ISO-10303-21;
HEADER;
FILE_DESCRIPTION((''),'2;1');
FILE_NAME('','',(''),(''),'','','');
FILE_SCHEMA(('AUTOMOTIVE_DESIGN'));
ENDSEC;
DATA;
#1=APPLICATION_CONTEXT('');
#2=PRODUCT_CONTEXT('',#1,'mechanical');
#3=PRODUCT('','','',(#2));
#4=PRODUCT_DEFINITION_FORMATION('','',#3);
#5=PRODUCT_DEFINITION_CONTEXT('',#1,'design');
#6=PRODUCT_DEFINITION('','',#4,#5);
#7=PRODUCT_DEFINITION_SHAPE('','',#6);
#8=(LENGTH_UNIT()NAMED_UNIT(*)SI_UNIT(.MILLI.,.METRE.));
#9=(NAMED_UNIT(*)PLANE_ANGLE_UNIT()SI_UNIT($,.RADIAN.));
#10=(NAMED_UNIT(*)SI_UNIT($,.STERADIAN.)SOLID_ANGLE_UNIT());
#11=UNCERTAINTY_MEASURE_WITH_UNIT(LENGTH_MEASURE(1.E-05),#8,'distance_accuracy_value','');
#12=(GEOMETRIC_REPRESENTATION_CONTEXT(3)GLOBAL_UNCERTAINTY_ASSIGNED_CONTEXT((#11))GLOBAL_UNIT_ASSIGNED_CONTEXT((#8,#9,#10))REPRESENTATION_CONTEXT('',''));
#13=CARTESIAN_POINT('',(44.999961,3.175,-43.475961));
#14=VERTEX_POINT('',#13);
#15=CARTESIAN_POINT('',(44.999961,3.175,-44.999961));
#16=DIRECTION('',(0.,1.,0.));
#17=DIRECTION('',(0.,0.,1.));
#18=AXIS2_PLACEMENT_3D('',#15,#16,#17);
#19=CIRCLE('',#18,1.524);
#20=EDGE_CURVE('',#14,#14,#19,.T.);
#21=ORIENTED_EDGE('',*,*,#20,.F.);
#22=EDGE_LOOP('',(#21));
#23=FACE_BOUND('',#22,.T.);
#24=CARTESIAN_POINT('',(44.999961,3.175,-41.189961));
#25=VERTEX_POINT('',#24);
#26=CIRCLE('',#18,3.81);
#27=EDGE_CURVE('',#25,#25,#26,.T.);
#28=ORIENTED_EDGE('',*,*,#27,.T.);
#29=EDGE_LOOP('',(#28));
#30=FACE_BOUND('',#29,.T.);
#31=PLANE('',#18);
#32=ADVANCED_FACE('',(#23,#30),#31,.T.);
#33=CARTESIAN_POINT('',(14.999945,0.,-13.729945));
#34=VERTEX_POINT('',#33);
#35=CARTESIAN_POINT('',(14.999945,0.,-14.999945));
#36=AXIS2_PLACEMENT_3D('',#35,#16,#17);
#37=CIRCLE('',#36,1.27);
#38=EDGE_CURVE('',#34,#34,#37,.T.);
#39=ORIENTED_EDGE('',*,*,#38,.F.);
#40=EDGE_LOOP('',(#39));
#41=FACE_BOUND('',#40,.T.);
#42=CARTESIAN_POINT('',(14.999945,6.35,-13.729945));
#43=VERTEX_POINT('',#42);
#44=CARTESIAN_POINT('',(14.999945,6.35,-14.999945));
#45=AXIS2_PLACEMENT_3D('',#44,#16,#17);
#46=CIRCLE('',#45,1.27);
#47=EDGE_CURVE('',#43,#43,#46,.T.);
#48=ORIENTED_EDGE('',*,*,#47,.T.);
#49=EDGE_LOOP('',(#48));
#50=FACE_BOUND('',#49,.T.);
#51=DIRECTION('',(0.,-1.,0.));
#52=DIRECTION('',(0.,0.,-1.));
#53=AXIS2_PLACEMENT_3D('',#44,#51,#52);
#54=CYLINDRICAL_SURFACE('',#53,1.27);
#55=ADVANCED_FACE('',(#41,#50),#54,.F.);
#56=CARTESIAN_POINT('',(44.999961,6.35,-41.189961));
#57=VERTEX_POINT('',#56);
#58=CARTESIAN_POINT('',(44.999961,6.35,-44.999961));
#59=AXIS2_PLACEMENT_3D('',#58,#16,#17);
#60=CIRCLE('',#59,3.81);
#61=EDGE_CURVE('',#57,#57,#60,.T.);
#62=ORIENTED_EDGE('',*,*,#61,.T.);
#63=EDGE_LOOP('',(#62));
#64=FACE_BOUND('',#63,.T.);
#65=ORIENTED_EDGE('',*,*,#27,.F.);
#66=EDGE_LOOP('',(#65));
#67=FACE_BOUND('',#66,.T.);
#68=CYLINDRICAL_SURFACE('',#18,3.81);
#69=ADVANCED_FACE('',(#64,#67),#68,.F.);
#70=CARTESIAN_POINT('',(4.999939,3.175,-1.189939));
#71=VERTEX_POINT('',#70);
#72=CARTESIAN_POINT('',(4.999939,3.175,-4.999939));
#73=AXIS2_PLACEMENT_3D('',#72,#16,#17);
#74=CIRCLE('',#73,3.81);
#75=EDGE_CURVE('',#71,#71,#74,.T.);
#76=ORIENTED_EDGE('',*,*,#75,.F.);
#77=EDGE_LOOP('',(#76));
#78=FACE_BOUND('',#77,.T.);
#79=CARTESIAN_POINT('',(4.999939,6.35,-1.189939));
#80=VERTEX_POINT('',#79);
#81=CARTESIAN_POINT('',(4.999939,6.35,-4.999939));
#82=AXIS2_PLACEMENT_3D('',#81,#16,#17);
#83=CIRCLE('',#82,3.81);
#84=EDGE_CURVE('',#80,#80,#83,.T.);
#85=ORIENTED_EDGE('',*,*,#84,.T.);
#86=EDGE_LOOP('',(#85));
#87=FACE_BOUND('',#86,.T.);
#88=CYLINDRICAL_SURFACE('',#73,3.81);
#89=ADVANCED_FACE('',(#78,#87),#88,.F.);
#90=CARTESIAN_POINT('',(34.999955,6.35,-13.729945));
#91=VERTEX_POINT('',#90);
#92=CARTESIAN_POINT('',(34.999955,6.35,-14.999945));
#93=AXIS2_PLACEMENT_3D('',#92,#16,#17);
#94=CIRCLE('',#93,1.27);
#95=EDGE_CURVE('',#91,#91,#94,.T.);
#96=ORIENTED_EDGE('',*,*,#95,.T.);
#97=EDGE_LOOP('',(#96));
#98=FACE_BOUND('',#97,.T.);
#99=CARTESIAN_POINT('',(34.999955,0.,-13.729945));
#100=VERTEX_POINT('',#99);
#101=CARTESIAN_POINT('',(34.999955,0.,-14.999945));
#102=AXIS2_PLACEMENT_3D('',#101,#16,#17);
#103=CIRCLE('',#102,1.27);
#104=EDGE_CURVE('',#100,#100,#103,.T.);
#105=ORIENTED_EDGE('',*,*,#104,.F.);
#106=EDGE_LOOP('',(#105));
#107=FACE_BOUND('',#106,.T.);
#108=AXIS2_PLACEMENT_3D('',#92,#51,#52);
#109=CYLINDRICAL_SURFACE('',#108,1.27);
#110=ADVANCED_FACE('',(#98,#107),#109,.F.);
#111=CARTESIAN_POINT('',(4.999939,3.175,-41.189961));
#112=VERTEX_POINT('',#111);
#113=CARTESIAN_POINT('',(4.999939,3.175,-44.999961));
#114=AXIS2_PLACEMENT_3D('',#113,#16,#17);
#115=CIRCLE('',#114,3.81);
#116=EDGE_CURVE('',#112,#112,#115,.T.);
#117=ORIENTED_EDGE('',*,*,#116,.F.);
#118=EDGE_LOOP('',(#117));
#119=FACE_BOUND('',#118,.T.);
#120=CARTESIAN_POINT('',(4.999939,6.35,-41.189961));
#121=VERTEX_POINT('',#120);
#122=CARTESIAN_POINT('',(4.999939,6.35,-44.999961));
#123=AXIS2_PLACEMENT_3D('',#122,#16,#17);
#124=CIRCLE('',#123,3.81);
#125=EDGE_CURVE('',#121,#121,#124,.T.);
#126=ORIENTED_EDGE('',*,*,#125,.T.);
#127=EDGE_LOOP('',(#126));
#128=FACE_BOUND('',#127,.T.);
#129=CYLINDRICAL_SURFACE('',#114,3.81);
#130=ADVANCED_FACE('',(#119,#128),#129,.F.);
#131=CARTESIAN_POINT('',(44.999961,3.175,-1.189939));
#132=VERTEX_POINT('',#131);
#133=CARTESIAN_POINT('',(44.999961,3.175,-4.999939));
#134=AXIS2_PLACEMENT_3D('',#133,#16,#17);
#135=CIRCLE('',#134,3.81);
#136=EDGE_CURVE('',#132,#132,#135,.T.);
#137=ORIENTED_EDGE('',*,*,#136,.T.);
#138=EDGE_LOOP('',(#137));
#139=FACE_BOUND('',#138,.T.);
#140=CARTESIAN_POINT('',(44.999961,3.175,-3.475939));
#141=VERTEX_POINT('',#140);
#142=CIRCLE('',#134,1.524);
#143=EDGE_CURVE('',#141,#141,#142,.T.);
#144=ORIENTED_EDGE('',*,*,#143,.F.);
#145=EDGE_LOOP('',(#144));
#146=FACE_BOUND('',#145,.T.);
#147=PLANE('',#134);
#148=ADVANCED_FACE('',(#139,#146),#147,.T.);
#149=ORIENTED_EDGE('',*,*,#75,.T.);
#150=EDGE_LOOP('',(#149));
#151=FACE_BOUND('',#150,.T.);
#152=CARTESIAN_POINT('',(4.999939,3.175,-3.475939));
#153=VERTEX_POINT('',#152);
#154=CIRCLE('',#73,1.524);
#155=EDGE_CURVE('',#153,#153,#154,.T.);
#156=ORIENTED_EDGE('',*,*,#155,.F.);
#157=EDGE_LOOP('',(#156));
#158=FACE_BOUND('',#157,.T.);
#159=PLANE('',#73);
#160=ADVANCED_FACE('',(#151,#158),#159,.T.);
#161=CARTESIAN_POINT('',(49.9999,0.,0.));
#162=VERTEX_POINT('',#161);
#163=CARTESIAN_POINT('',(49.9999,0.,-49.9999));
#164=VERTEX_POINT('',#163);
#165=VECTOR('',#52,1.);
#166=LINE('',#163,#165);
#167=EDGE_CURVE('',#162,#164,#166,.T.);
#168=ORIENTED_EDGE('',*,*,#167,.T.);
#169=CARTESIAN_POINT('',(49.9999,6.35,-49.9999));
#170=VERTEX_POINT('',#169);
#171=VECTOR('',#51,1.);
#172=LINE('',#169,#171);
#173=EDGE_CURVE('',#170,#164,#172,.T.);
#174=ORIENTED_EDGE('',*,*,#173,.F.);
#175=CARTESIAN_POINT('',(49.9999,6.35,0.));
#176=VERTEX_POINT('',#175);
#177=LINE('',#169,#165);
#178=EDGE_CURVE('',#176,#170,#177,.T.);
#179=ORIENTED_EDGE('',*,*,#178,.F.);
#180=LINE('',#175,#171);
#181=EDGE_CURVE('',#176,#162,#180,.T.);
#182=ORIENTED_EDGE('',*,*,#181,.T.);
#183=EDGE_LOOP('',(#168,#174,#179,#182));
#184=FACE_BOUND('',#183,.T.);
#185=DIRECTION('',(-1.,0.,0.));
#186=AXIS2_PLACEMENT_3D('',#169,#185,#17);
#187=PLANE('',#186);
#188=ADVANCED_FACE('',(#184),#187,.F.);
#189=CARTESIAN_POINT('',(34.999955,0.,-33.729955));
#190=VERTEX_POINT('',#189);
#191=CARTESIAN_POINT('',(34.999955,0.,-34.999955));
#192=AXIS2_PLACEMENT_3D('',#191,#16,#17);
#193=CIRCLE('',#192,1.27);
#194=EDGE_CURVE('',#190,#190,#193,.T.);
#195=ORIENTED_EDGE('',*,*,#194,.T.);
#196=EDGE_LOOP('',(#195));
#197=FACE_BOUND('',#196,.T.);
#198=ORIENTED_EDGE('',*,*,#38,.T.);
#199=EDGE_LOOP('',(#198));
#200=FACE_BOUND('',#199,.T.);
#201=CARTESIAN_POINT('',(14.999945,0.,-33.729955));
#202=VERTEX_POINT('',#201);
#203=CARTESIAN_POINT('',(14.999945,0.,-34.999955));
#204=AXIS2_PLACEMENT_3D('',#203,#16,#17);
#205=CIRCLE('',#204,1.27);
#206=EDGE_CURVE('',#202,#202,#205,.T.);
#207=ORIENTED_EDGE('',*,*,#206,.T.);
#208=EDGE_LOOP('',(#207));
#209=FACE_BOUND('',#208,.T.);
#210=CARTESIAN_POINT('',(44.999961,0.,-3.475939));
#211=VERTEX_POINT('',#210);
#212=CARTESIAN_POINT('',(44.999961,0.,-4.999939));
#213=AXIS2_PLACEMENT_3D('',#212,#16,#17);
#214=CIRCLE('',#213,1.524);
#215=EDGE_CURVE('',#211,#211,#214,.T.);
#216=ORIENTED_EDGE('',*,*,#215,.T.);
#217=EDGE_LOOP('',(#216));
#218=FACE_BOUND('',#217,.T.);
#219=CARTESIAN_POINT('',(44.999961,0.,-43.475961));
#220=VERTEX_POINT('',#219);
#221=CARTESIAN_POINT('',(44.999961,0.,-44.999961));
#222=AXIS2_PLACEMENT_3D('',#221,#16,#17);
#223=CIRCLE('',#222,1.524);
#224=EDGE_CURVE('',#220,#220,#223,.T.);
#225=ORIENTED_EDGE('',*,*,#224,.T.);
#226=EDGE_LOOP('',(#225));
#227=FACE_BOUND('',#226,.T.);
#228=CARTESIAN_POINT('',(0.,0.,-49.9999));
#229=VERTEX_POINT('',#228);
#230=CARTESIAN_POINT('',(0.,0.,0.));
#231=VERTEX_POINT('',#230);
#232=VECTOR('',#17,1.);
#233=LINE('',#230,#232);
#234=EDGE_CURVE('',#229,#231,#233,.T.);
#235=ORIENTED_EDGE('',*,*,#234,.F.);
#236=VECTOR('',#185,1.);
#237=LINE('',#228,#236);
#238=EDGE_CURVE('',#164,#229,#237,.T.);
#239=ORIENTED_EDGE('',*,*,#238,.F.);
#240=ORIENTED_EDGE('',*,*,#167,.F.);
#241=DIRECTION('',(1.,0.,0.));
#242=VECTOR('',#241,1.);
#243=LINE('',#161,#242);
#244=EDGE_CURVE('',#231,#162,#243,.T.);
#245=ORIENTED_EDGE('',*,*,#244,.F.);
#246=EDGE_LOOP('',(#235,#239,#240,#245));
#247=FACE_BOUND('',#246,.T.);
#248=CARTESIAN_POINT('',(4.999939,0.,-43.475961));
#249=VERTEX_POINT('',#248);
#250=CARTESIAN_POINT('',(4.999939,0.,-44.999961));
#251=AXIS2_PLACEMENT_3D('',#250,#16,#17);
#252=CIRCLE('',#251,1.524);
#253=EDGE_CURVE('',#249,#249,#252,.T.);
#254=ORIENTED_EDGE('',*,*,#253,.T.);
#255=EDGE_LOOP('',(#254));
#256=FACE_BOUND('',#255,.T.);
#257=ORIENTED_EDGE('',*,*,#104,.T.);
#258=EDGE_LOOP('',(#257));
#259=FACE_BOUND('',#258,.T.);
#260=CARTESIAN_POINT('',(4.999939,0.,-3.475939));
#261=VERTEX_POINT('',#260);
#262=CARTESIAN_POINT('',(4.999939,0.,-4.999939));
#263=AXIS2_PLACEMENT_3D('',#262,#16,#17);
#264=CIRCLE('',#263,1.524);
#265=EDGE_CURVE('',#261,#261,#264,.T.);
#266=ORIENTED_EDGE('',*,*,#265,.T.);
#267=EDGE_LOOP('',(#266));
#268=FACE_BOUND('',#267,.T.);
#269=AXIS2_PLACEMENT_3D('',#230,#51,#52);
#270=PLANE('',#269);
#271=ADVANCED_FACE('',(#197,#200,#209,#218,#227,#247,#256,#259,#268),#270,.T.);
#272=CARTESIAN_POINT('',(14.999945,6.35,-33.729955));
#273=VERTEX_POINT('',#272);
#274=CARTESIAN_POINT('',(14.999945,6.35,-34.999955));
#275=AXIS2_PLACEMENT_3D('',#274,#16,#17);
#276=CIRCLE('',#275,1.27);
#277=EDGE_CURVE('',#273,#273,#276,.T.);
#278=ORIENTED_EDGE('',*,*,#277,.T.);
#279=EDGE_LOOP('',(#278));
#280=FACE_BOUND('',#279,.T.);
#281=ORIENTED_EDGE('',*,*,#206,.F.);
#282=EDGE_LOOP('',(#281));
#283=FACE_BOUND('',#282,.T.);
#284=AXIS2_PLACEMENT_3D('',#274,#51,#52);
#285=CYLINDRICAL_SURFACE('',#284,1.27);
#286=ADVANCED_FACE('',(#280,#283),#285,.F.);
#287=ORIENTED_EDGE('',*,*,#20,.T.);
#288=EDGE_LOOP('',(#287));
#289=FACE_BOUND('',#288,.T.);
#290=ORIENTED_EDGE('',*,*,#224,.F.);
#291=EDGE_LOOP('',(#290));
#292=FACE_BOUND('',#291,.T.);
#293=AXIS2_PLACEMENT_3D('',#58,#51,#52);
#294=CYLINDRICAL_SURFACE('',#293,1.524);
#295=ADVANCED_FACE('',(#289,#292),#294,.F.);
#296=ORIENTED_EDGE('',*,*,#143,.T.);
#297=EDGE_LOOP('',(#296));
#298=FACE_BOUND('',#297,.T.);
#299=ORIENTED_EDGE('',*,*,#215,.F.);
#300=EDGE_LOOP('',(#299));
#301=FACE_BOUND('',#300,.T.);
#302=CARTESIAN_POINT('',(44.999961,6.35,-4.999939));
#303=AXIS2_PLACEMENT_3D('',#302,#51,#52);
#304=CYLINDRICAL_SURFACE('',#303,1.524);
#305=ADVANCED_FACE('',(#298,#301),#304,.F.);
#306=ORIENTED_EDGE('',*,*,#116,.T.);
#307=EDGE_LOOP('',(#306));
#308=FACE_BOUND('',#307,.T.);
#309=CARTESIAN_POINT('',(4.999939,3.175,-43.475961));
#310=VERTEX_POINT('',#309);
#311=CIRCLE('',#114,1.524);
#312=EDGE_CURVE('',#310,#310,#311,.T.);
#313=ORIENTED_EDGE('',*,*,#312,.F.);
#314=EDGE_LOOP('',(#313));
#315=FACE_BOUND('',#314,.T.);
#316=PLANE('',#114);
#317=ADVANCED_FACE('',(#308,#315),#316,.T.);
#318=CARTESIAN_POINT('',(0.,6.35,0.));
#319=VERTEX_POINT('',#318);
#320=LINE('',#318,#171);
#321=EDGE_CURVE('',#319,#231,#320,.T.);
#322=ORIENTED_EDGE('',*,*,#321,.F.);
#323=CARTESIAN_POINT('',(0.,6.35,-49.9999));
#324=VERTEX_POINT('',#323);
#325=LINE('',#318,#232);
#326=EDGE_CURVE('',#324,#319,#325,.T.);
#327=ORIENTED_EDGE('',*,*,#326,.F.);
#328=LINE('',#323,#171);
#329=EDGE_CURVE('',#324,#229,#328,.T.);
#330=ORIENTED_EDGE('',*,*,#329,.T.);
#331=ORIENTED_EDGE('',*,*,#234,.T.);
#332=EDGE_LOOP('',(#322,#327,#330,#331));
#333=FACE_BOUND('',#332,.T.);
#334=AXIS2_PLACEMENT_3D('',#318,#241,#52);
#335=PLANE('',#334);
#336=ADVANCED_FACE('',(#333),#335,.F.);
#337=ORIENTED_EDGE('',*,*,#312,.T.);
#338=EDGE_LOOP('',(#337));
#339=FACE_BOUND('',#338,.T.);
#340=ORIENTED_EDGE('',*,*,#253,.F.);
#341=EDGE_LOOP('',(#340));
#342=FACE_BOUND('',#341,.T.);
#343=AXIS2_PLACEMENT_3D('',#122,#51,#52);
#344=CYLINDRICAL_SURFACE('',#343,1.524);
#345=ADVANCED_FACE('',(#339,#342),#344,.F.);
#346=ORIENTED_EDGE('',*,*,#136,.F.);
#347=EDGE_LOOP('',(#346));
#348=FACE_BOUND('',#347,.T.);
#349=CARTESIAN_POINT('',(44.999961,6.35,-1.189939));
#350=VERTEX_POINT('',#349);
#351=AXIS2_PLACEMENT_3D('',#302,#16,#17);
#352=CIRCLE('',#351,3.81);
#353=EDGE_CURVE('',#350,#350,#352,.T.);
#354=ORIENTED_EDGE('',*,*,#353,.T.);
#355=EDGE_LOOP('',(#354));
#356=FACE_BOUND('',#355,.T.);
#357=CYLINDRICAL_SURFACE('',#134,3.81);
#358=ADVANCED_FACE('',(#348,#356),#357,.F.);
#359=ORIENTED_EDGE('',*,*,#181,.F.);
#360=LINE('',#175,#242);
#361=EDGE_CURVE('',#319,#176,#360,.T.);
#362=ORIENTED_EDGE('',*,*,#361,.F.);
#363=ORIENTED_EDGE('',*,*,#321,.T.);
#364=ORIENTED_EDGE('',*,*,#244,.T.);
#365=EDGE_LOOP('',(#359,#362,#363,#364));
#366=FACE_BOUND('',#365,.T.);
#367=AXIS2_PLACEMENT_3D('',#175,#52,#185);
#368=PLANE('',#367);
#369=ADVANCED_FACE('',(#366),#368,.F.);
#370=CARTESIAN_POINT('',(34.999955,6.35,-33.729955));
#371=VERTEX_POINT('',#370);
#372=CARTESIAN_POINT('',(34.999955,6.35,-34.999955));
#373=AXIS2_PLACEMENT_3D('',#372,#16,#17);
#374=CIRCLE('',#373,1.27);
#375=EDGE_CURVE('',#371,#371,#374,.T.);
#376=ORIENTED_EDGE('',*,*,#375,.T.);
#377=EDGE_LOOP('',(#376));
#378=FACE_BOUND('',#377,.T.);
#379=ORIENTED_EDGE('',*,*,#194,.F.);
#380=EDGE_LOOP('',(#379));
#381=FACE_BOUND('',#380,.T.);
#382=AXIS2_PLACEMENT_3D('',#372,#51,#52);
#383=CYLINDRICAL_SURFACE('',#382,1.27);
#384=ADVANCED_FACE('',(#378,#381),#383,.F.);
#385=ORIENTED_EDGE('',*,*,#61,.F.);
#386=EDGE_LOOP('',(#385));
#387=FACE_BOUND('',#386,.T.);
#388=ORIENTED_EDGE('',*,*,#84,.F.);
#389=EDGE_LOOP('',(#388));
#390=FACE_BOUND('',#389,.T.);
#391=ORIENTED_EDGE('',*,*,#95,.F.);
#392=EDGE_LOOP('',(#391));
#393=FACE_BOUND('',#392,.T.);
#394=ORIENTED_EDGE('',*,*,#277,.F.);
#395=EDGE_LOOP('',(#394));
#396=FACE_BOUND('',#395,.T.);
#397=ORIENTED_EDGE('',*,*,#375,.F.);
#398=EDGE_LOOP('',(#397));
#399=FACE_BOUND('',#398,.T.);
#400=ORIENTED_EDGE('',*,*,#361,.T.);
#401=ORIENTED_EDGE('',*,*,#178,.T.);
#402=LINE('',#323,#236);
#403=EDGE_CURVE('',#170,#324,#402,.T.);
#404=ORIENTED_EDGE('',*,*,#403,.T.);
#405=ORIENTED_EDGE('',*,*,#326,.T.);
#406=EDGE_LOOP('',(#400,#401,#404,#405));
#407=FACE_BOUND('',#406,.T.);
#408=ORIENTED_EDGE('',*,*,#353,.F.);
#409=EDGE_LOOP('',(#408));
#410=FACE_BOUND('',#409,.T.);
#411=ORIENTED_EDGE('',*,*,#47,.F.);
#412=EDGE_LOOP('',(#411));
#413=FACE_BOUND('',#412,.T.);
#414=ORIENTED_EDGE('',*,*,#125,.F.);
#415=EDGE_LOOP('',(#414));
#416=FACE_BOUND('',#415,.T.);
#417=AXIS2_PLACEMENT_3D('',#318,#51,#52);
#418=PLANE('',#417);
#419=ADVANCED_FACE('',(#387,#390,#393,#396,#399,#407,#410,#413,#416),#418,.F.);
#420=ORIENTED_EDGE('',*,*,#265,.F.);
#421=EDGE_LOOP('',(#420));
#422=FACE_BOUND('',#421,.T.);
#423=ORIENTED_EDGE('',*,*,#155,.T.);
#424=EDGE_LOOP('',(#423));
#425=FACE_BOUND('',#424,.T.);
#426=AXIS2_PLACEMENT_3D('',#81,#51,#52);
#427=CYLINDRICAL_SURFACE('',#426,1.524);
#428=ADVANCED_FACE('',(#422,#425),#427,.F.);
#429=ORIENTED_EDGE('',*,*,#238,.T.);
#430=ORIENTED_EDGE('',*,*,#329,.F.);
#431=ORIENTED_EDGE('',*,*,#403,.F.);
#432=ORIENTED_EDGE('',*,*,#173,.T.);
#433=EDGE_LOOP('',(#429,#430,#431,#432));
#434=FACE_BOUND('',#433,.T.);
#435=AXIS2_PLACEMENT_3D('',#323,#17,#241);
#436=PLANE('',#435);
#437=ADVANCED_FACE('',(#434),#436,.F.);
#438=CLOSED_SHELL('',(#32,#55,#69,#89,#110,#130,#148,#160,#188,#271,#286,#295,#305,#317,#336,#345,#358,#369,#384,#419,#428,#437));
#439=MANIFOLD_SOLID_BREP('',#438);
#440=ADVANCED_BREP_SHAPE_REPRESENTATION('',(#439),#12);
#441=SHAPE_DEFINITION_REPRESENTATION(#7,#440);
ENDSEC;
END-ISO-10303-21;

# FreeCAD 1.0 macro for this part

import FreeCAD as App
import Part
import Sketcher
Q = App.Units.Quantity


def add_polygon(sketch, points):
    """Adds a closed chain of lines whose ends are joined by coincident constraints."""
    first, n = sketch.GeometryCount, len(points)
    for a, b in zip(points, points[1:] + points[:1]):
        sketch.addGeometry(Part.LineSegment(App.Vector(*a, 0), App.Vector(*b, 0)), False)
    for i in range(n):
        sketch.addConstraint(Sketcher.Constraint("Coincident", first + i, 2, first + (i + 1) % n, 1))

doc = App.newDocument("Part")
body = doc.addObject("PartDesign::Body", "Body")

# Sketch on XZ plane
sketch1 = body.newObject("Sketcher::SketchObject", "Sketch")
sketch1.AttachmentSupport = (doc.getObject("XZ_Plane"), [""])
sketch1.MapMode = "FlatFace"
add_polygon(sketch1, [(0, -50), (0, 0), (50, 0), (50, -50)])  # lines 0-3
sketch1.addGeometry(Part.Circle(App.Vector(5, -5, 0), App.Vector(0, 0, 1), 1.5), False)  # 4
sketch1.addGeometry(Part.Circle(App.Vector(15, -15, 0), App.Vector(0, 0, 1), 1.3), False)  # 5
sketch1.addGeometry(Part.Circle(App.Vector(45, -5, 0), App.Vector(0, 0, 1), 1.5), False)  # 6
sketch1.addGeometry(Part.Circle(App.Vector(35, -15, 0), App.Vector(0, 0, 1), 1.3), False)  # 7
sketch1.addGeometry(Part.Circle(App.Vector(15, -35, 0), App.Vector(0, 0, 1), 1.3), False)  # 8
sketch1.addGeometry(Part.Circle(App.Vector(5, -45, 0), App.Vector(0, 0, 1), 1.5), False)  # 9
sketch1.addGeometry(Part.Circle(App.Vector(35, -35, 0), App.Vector(0, 0, 1), 1.3), False)  # 10
sketch1.addGeometry(Part.Circle(App.Vector(45, -45, 0), App.Vector(0, 0, 1), 1.5), False)  # 11
sketch1.addConstraint(Sketcher.Constraint("Vertical", 0))
sketch1.addConstraint(Sketcher.Constraint("Horizontal", 1))
sketch1.addConstraint(Sketcher.Constraint("Vertical", 2))
sketch1.addConstraint(Sketcher.Constraint("Horizontal", 3))
sketch1.addConstraint(Sketcher.Constraint("Coincident", 0, 2, -1, 1))
sketch1.addConstraint(Sketcher.Constraint("Equal", 4, 6))
sketch1.addConstraint(Sketcher.Constraint("Equal", 5, 7))
sketch1.addConstraint(Sketcher.Constraint("Equal", 7, 8))
sketch1.addConstraint(Sketcher.Constraint("Equal", 6, 9))
sketch1.addConstraint(Sketcher.Constraint("Equal", 8, 10))
sketch1.addConstraint(Sketcher.Constraint("Equal", 9, 11))
sketch1.addConstraint(Sketcher.Constraint("Horizontal", 4, 3, 6, 3))
sketch1.addConstraint(Sketcher.Constraint("Horizontal", 5, 3, 7, 3))
sketch1.addConstraint(Sketcher.Constraint("Horizontal", 8, 3, 10, 3))
sketch1.addConstraint(Sketcher.Constraint("Horizontal", 9, 3, 11, 3))
sketch1.addConstraint(Sketcher.Constraint("Vertical", 5, 3, 8, 3))
sketch1.addConstraint(Sketcher.Constraint("Vertical", 4, 3, 9, 3))
sketch1.addConstraint(Sketcher.Constraint("Vertical", 7, 3, 10, 3))
sketch1.addConstraint(Sketcher.Constraint("Vertical", 6, 3, 11, 3))
sketch1.addConstraint(Sketcher.Constraint("Equal", 3, 0))
sketch1.addConstraint(Sketcher.Constraint("Diameter", 5, Q("0.1 in")))
sketch1.addConstraint(Sketcher.Constraint("Diameter", 4, Q("0.12 in")))
sketch1.addConstraint(Sketcher.Constraint("DistanceX", 1, 1, 1, 2, Q("1.9685 in")))
sketch1.addConstraint(Sketcher.Constraint("DistanceX", -1, 1, 4, 3, 4.999939))
sketch1.addConstraint(Sketcher.Constraint("DistanceY", 4, 3, -1, 1, 4.999939))
sketch1.addConstraint(Sketcher.Constraint("DistanceX", -1, 1, 6, 3, 44.999961))
sketch1.addConstraint(Sketcher.Constraint("DistanceY", 9, 3, -1, 1, 44.999961))
sketch1.addConstraint(Sketcher.Constraint("DistanceX", 5, 3, 7, 3, 20.000011))
sketch1.addConstraint(Sketcher.Constraint("DistanceY", 8, 3, 5, 3, 20.000011))
sketch1.addConstraint(Sketcher.Constraint("DistanceX", -1, 1, 5, 3, 14.999945))
sketch1.addConstraint(Sketcher.Constraint("DistanceY", 5, 3, -1, 1, 14.999945))
pad1 = body.newObject("PartDesign::Pad", "Pad")
pad1.Profile = sketch1
pad1.Length = Q("0.25 in")
pad1.Reversed = True

# Sketch on XZ plane
sketch2 = body.newObject("Sketcher::SketchObject", "Sketch001")
sketch2.AttachmentSupport = (doc.getObject("XZ_Plane"), [""])
sketch2.MapMode = "FlatFace"
sketch2.AttachmentOffset = App.Placement(App.Vector(0, 0, -0.25 * 25.4), App.Rotation())
sketch2.addGeometry(Part.Circle(App.Vector(5, -45, 0), App.Vector(0, 0, 1), 3.8), False)
sketch2.addGeometry(Part.Circle(App.Vector(45, -45, 0), App.Vector(0, 0, 1), 3.8), False)
sketch2.addGeometry(Part.Circle(App.Vector(5, -5, 0), App.Vector(0, 0, 1), 3.8), False)
sketch2.addGeometry(Part.Circle(App.Vector(45, -5, 0), App.Vector(0, 0, 1), 3.8), False)
sketch2.addConstraint(Sketcher.Constraint("Equal", 0, 1))
sketch2.addConstraint(Sketcher.Constraint("Equal", 1, 2))
sketch2.addConstraint(Sketcher.Constraint("Equal", 2, 3))
sketch2.addConstraint(Sketcher.Constraint("Horizontal", 0, 3, 1, 3))
sketch2.addConstraint(Sketcher.Constraint("Horizontal", 2, 3, 3, 3))
sketch2.addConstraint(Sketcher.Constraint("Vertical", 0, 3, 2, 3))
sketch2.addConstraint(Sketcher.Constraint("Vertical", 1, 3, 3, 3))
sketch2.addConstraint(Sketcher.Constraint("Diameter", 0, Q("0.3 in")))
sketch2.addConstraint(Sketcher.Constraint("DistanceX", -1, 1, 0, 3, 4.999939))
sketch2.addConstraint(Sketcher.Constraint("DistanceY", 0, 3, -1, 1, 44.999961))
sketch2.addConstraint(Sketcher.Constraint("DistanceX", -1, 1, 1, 3, 44.999961))
sketch2.addConstraint(Sketcher.Constraint("DistanceY", 2, 3, -1, 1, 4.999939))
pocket1 = body.newObject("PartDesign::Pocket", "Pocket")
pocket1.Profile = sketch2
pocket1.Length = Q("0.125 in")
pocket1.Reversed = True

doc.recompute()
